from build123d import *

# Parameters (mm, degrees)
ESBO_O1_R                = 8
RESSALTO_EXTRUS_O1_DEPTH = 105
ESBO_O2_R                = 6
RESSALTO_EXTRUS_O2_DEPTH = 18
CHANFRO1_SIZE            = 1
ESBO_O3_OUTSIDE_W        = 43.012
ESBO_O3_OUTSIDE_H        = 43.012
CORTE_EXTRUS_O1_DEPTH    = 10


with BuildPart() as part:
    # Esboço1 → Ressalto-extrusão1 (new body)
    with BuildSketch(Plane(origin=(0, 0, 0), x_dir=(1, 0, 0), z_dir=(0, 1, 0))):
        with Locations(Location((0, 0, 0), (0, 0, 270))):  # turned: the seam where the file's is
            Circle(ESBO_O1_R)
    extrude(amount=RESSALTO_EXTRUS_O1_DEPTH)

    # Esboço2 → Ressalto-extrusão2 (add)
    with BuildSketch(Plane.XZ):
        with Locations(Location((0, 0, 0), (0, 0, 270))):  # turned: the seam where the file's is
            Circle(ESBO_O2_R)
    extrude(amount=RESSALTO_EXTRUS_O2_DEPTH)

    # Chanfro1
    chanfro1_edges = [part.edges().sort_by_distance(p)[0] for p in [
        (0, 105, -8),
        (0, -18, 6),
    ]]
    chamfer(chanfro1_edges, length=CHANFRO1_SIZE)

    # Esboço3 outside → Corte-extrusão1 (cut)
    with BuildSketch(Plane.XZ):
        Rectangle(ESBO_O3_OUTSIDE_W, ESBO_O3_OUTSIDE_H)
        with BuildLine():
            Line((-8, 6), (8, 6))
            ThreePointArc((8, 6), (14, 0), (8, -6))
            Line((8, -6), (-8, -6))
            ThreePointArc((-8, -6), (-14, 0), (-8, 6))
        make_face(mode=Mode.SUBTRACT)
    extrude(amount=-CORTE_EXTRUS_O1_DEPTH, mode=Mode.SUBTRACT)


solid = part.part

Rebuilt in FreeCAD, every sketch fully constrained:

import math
import FreeCAD as App
import Part
import Sketcher
Q = App.Units.Quantity


def edges_at(feature, points):
    """Names of the edges that pass closest to the given points."""
    edges = feature.Shape.Edges
    near = lambda p: min(range(len(edges)), key=lambda i: edges[i].distToShape(Part.Vertex(*p))[0])
    return sorted({f"Edge{near(p) + 1}" for p in points})


def add_polygon(sketch, points):
    """Adds a closed chain of lines whose ends are joined by coincident constraints."""
    first, n = sketch.GeometryCount, len(points)
    for a, b in zip(points, points[1:] + points[:1]):
        sketch.addGeometry(Part.LineSegment(App.Vector(*a, 0), App.Vector(*b, 0)), False)
    for i in range(n):
        sketch.addConstraint(Sketcher.Constraint("Coincident", first + i, 2, first + (i + 1) % n, 1))

doc = App.newDocument("Part")
body = doc.addObject("PartDesign::Body", "Body")

sketch1 = body.newObject("Sketcher::SketchObject", "Sketch")
sketch1.AttachmentSupport = (doc.getObject("XZ_Plane"), [""])
sketch1.MapMode = "FlatFace"
sketch1.addGeometry(Part.Circle(App.Vector(0, 0, 0), App.Vector(0, 0, 1), 8), False)
sketch1.addConstraint([
    Sketcher.Constraint("Coincident", 0, 3, -1, 1),
    Sketcher.Constraint("Diameter", 0, Q("16 mm")),
])
pad1 = body.newObject("PartDesign::Pad", "Pad")
pad1.Profile = sketch1
pad1.Length = 105
pad1.Reversed = True

sketch2 = body.newObject("Sketcher::SketchObject", "Sketch001")
sketch2.AttachmentSupport = (doc.getObject("XZ_Plane"), [""])
sketch2.MapMode = "FlatFace"
sketch2.addGeometry(Part.Circle(App.Vector(0, 0, 0), App.Vector(0, 0, 1), 6), False)
sketch2.addConstraint([
    Sketcher.Constraint("Coincident", 0, 3, -1, 1),
    Sketcher.Constraint("Diameter", 0, Q("12 mm")),
])
pad2 = body.newObject("PartDesign::Pad", "Pad001")
pad2.Profile = sketch2
pad2.Length = 18
doc.recompute()

chamfer = body.newObject("PartDesign::Chamfer", "Chamfer")
chamfer.Base = (pad2, edges_at(pad2, [(0, 105, -8), (0, -18, 6)]))
chamfer.Size = 1

sketch3 = body.newObject("Sketcher::SketchObject", "Sketch002")
sketch3.AttachmentSupport = (doc.getObject("XZ_Plane"), [""])
sketch3.MapMode = "FlatFace"
add_polygon(sketch3, [(-22, 22), (-22, -22), (22, -22), (22, 22)])
sketch3.addGeometry(Part.ArcOfCircle(Part.Circle(App.Vector(-8, 0, 0), App.Vector(0, 0, 1), 6), math.radians(90), math.radians(270)), False)
sketch3.addGeometry(Part.LineSegment(App.Vector(-8, 6, 0), App.Vector(8, 6, 0)), False)
sketch3.addGeometry(Part.ArcOfCircle(Part.Circle(App.Vector(8, 0, 0), App.Vector(0, 0, 1), 6), math.radians(-90), math.radians(90)), False)
sketch3.addGeometry(Part.LineSegment(App.Vector(8, -6, 0), App.Vector(-8, -6, 0)), False)
sketch3.addConstraint([
    Sketcher.Constraint("Tangent", 4, 1, 5, 1),
    Sketcher.Constraint("Tangent", 5, 2, 6, 2),
    Sketcher.Constraint("Tangent", 6, 1, 7, 1),
    Sketcher.Constraint("Tangent", 7, 2, 4, 2),
    Sketcher.Constraint("Vertical", 0),
    Sketcher.Constraint("Horizontal", 1),
    Sketcher.Constraint("Vertical", 2),
    Sketcher.Constraint("Horizontal", 3),
    Sketcher.Constraint("Horizontal", 5),
    Sketcher.Constraint("Horizontal", 7),
    Sketcher.Constraint("Symmetric", 4, 3, 6, 3, -1, 1),
    Sketcher.Constraint("Symmetric", 0, 2, 2, 2, -1, 1),
    Sketcher.Constraint("Equal", 3, 0),
    Sketcher.Constraint("Radius", 4, Q("6 mm")),
    Sketcher.Constraint("DistanceX", 5, 1, 5, 2, Q("16 mm")),
    Sketcher.Constraint("DistanceX", 1, 1, 1, 2, Q("43.012 mm")),
])
pocket1 = body.newObject("PartDesign::Pocket", "Pocket")
pocket1.Profile = sketch3
pocket1.Length = 10

doc.recompute()
